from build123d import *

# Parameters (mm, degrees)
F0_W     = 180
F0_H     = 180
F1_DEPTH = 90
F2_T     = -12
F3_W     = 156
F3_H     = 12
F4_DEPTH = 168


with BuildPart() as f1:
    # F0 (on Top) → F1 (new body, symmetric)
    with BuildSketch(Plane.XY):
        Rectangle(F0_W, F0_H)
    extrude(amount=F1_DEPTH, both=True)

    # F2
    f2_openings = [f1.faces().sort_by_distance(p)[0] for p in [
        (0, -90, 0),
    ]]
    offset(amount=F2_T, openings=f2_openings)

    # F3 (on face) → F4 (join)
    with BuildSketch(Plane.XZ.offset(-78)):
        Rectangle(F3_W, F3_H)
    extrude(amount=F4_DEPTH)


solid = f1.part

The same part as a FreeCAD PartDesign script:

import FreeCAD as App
import Part
import Sketcher
Q = App.Units.Quantity


def faces_at(feature, points):
    """Names of the faces that lie closest to the given points."""
    faces = feature.Shape.Faces
    near = lambda p: min(range(len(faces)), key=lambda i: faces[i].distToShape(Part.Vertex(*p))[0])
    return sorted({f"Face{near(p) + 1}" for p in points})


def add_polygon(sketch, points):
    """Adds a closed chain of lines whose ends are joined by coincident constraints."""
    first, n = sketch.GeometryCount, len(points)
    for a, b in zip(points, points[1:] + points[:1]):
        sketch.addGeometry(Part.LineSegment(App.Vector(*a, 0), App.Vector(*b, 0)), False)
    for i in range(n):
        sketch.addConstraint(Sketcher.Constraint("Coincident", first + i, 2, first + (i + 1) % n, 1))

doc = App.newDocument("Part")
body = doc.addObject("PartDesign::Body", "Body")

sketch1 = body.newObject("Sketcher::SketchObject", "Sketch")
sketch1.AttachmentSupport = (doc.getObject("XY_Plane"), [""])
sketch1.MapMode = "FlatFace"
add_polygon(sketch1, [(-90, 90), (-90, -90), (90, -90), (90, 90)])
sketch1.addConstraint([
    Sketcher.Constraint("Vertical", 0),
    Sketcher.Constraint("Horizontal", 1),
    Sketcher.Constraint("Vertical", 2),
    Sketcher.Constraint("Horizontal", 3),
    Sketcher.Constraint("Symmetric", 0, 2, 2, 2, -1, 1),
    Sketcher.Constraint("Equal", 3, 0),
    Sketcher.Constraint("DistanceX", 1, 1, 1, 2, Q("180 mm")),
])
pad1 = body.newObject("PartDesign::Pad", "Pad")
pad1.Profile = sketch1
pad1.Length = 180
pad1.Midplane = True
doc.recompute()

thickness = body.newObject("PartDesign::Thickness", "Thickness")
thickness.Base = (pad1, faces_at(pad1, [(0, -90, 0)]))
thickness.Value = 12
thickness.Reversed = True
thickness.Join = "Arc"

sketch2 = body.newObject("Sketcher::SketchObject", "Sketch001")
sketch2.AttachmentSupport = (doc.getObject("XZ_Plane"), [""])
sketch2.MapMode = "FlatFace"
sketch2.AttachmentOffset = App.Placement(App.Vector(0, 0, -78), App.Rotation())
add_polygon(sketch2, [(-78, 6), (-78, -6), (78, -6), (78, 6)])
sketch2.addConstraint([
    Sketcher.Constraint("Vertical", 0),
    Sketcher.Constraint("Horizontal", 1),
    Sketcher.Constraint("Vertical", 2),
    Sketcher.Constraint("Horizontal", 3),
    Sketcher.Constraint("Symmetric", 0, 2, 2, 2, -1, 1),
    Sketcher.Constraint("DistanceX", 1, 1, 1, 2, Q("156 mm")),
    Sketcher.Constraint("DistanceY", 0, 2, 0, 1, Q("12 mm")),
])
pad2 = body.newObject("PartDesign::Pad", "Pad001")
pad2.Profile = sketch2
pad2.Length = 168

doc.recompute()
